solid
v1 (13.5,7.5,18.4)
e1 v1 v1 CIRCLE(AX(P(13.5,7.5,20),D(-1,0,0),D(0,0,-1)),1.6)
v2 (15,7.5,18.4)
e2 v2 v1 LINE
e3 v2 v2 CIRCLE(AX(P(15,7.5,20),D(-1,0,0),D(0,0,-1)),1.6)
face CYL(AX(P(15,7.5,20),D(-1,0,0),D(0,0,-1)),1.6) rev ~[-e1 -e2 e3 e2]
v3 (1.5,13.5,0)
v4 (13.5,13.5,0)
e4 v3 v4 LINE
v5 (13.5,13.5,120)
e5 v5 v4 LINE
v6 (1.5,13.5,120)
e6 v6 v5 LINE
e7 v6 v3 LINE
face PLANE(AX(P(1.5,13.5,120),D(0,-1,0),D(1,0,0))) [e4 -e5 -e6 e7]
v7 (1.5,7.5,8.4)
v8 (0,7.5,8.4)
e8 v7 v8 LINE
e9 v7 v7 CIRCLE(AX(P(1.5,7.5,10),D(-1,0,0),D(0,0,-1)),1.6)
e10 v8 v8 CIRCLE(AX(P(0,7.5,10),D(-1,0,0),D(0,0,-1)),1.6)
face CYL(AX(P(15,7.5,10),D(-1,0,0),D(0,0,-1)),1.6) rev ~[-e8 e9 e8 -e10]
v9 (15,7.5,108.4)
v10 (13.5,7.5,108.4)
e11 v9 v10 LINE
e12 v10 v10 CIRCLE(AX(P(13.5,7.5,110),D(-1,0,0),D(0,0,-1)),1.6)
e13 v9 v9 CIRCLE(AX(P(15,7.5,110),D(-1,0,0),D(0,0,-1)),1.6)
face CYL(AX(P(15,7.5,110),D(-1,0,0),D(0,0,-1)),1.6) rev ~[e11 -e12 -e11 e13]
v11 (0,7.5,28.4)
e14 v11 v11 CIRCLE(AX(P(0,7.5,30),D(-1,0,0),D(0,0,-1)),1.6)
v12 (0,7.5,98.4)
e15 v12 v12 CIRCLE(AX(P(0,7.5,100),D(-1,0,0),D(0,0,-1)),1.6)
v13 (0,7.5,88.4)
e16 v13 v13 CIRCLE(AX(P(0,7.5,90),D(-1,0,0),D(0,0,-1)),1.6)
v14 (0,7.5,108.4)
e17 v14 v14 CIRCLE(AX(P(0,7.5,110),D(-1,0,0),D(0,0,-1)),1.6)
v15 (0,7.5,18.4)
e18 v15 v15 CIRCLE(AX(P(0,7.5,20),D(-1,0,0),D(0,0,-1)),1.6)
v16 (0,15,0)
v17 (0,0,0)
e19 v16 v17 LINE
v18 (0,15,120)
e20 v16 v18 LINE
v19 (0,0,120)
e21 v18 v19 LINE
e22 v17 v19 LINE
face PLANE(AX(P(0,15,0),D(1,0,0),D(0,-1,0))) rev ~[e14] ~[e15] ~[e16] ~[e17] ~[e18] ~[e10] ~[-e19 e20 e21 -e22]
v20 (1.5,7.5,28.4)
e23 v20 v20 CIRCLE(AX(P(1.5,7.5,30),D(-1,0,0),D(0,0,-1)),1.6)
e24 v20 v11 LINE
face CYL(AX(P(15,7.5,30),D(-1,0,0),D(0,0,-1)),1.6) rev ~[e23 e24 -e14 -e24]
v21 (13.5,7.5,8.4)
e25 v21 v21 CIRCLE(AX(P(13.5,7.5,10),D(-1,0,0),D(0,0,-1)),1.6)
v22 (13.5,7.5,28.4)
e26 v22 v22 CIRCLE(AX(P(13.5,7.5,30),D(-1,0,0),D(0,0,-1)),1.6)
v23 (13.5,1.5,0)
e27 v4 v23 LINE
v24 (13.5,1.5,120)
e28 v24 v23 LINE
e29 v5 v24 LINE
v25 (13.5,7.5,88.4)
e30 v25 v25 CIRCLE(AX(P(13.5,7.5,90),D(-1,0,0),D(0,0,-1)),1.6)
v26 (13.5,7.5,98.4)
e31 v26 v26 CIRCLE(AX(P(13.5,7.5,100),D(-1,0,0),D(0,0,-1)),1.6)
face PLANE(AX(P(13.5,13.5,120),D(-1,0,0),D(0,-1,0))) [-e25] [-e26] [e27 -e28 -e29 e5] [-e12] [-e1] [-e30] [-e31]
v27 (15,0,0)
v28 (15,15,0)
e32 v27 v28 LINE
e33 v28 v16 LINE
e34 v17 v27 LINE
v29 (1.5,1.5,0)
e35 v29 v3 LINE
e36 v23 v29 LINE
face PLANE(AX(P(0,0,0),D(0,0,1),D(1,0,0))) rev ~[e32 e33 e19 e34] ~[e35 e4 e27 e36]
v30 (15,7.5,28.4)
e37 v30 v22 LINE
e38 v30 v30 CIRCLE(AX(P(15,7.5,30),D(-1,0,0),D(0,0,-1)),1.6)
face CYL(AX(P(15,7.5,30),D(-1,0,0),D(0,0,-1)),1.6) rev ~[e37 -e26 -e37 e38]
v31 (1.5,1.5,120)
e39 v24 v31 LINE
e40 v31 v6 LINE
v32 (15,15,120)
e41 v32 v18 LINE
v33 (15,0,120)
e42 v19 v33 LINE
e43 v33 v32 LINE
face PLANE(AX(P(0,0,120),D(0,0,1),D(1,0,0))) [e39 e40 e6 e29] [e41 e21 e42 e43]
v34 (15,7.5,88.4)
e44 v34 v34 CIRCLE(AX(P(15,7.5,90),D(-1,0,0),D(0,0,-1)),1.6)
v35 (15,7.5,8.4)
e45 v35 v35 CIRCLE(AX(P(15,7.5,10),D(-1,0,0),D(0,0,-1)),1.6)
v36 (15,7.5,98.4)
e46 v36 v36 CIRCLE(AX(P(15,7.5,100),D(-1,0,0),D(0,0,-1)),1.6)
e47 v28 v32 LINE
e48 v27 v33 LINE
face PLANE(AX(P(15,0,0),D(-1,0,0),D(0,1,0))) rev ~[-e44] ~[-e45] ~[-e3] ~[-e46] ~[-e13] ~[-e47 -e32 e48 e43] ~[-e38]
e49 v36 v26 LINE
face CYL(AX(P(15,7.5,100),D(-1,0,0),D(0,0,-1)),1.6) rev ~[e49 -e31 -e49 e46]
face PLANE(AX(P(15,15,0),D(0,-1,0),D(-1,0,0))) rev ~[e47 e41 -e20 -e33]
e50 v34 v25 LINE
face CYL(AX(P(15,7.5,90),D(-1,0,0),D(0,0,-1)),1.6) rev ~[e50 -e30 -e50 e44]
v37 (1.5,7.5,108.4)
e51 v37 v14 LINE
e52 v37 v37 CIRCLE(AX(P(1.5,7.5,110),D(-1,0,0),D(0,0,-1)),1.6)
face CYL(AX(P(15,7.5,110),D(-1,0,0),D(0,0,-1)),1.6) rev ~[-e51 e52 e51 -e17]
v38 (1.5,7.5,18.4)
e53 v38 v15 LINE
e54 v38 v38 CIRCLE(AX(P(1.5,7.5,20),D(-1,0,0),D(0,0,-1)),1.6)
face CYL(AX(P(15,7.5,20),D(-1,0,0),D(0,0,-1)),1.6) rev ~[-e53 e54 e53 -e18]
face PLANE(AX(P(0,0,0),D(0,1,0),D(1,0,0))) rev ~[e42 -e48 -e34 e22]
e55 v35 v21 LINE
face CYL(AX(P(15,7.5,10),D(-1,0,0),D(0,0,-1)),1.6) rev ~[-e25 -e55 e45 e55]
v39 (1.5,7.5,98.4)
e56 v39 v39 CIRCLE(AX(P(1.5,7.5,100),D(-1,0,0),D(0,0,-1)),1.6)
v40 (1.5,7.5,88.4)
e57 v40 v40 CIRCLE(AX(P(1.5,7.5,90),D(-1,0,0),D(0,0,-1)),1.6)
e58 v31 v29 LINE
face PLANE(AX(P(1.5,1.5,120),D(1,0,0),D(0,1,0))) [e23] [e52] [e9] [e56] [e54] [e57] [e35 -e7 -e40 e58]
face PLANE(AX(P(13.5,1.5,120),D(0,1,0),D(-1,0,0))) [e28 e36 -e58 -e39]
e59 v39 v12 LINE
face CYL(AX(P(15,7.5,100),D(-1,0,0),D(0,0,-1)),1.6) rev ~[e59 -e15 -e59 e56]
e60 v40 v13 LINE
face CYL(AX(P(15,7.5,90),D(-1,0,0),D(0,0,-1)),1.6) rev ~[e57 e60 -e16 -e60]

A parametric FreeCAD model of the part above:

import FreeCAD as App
import Part
import Sketcher
Q = App.Units.Quantity


def add_polygon(sketch, points):
    """Adds a closed chain of lines whose ends are joined by coincident constraints."""
    first, n = sketch.GeometryCount, len(points)
    for a, b in zip(points, points[1:] + points[:1]):
        sketch.addGeometry(Part.LineSegment(App.Vector(*a, 0), App.Vector(*b, 0)), False)
    for i in range(n):
        sketch.addConstraint(Sketcher.Constraint("Coincident", first + i, 2, first + (i + 1) % n, 1))

doc = App.newDocument("Part")
body = doc.addObject("PartDesign::Body", "Body")

sketch1 = body.newObject("Sketcher::SketchObject", "Sketch")
sketch1.AttachmentSupport = (doc.getObject("XY_Plane"), [""])
sketch1.MapMode = "FlatFace"
add_polygon(sketch1, [(0, 15), (0, 0), (15, 0), (15, 15)])
sketch1.addConstraint(Sketcher.Constraint("Vertical", 0))
sketch1.addConstraint(Sketcher.Constraint("Horizontal", 1))
sketch1.addConstraint(Sketcher.Constraint("Vertical", 2))
sketch1.addConstraint(Sketcher.Constraint("Horizontal", 3))
sketch1.addConstraint(Sketcher.Constraint("Coincident", 0, 2, -1, 1))
sketch1.addConstraint(Sketcher.Constraint("Equal", 3, 0))
sketch1.addConstraint(Sketcher.Constraint("DistanceX", 1, 1, 1, 2, Q("15 mm")))
pad1 = body.newObject("PartDesign::Pad", "Pad")
pad1.Profile = sketch1
pad1.Length = 120

sketch2 = body.newObject("Sketcher::SketchObject", "Sketch001")
sketch2.AttachmentSupport = (doc.getObject("YZ_Plane"), [""])
sketch2.MapMode = "FlatFace"
sketch2.AttachmentOffset = App.Placement(App.Vector(0, 0, 15), App.Rotation())
sketch2.addGeometry(Part.Circle(App.Vector(7.5, 110, 0), App.Vector(0, 0, 1), 1.6), False)
sketch2.addGeometry(Part.Circle(App.Vector(7.5, 100, 0), App.Vector(0, 0, 1), 1.6), False)
sketch2.addGeometry(Part.Circle(App.Vector(7.5, 90, 0), App.Vector(0, 0, 1), 1.6), False)
sketch2.addGeometry(Part.Circle(App.Vector(7.5, 30, 0), App.Vector(0, 0, 1), 1.6), False)
sketch2.addGeometry(Part.Circle(App.Vector(7.5, 20, 0), App.Vector(0, 0, 1), 1.6), False)
sketch2.addGeometry(Part.Circle(App.Vector(7.5, 10, 0), App.Vector(0, 0, 1), 1.6), False)
sketch2.addConstraint(Sketcher.Constraint("Equal", 0, 1))
sketch2.addConstraint(Sketcher.Constraint("Equal", 1, 2))
sketch2.addConstraint(Sketcher.Constraint("Equal", 2, 3))
sketch2.addConstraint(Sketcher.Constraint("Equal", 3, 4))
sketch2.addConstraint(Sketcher.Constraint("Equal", 4, 5))
sketch2.addConstraint(Sketcher.Constraint("Vertical", 0, 3, 1, 3))
sketch2.addConstraint(Sketcher.Constraint("Vertical", 1, 3, 2, 3))
sketch2.addConstraint(Sketcher.Constraint("Vertical", 2, 3, 3, 3))
sketch2.addConstraint(Sketcher.Constraint("Vertical", 3, 3, 4, 3))
sketch2.addConstraint(Sketcher.Constraint("Vertical", 4, 3, 5, 3))
sketch2.addConstraint(Sketcher.Constraint("Diameter", 0, Q("3.2 mm")))
sketch2.addConstraint(Sketcher.Constraint("DistanceY", -1, 1, 0, 3, Q("110 mm")))
sketch2.addConstraint(Sketcher.Constraint("DistanceY", -1, 1, 1, 3, Q("100 mm")))
sketch2.addConstraint(Sketcher.Constraint("DistanceY", -1, 1, 2, 3, Q("90 mm")))
sketch2.addConstraint(Sketcher.Constraint("DistanceY", -1, 1, 3, 3, Q("30 mm")))
sketch2.addConstraint(Sketcher.Constraint("DistanceY", -1, 1, 4, 3, Q("20 mm")))
sketch2.addConstraint(Sketcher.Constraint("DistanceY", -1, 1, 5, 3, Q("10 mm")))
sketch2.addConstraint(Sketcher.Constraint("DistanceX", -1, 1, 0, 3, Q("7.5 mm")))
doc.recompute()
hole = body.newObject("PartDesign::Hole", "Hole")
hole.Profile = sketch2
hole.ThreadType = "None"
hole.Diameter = 3.2
hole.DepthType = "ThroughAll"

sketch3 = body.newObject("Sketcher::SketchObject", "Sketch002")
sketch3.AttachmentSupport = (doc.getObject("XY_Plane"), [""])
sketch3.MapMode = "FlatFace"
sketch3.AttachmentOffset = App.Placement(App.Vector(0, 0, 120), App.Rotation())
add_polygon(sketch3, [(14, 14), (2, 14), (2, 2), (14, 2)])
sketch3.addConstraint(Sketcher.Constraint("Horizontal", 0))
sketch3.addConstraint(Sketcher.Constraint("Vertical", 1))
sketch3.addConstraint(Sketcher.Constraint("Horizontal", 2))
sketch3.addConstraint(Sketcher.Constraint("Vertical", 3))
sketch3.addConstraint(Sketcher.Constraint("Equal", 2, 1))
sketch3.addConstraint(Sketcher.Constraint("DistanceX", 0, 2, 0, 1, Q("12 mm")))
sketch3.addConstraint(Sketcher.Constraint("DistanceX", -1, 1, 0, 2, Q("1.5 mm")))
sketch3.addConstraint(Sketcher.Constraint("DistanceY", -1, 1, 1, 2, Q("1.5 mm")))
pocket1 = body.newObject("PartDesign::Pocket", "Pocket")
pocket1.Profile = sketch3
pocket1.Length = 600

doc.recompute()
